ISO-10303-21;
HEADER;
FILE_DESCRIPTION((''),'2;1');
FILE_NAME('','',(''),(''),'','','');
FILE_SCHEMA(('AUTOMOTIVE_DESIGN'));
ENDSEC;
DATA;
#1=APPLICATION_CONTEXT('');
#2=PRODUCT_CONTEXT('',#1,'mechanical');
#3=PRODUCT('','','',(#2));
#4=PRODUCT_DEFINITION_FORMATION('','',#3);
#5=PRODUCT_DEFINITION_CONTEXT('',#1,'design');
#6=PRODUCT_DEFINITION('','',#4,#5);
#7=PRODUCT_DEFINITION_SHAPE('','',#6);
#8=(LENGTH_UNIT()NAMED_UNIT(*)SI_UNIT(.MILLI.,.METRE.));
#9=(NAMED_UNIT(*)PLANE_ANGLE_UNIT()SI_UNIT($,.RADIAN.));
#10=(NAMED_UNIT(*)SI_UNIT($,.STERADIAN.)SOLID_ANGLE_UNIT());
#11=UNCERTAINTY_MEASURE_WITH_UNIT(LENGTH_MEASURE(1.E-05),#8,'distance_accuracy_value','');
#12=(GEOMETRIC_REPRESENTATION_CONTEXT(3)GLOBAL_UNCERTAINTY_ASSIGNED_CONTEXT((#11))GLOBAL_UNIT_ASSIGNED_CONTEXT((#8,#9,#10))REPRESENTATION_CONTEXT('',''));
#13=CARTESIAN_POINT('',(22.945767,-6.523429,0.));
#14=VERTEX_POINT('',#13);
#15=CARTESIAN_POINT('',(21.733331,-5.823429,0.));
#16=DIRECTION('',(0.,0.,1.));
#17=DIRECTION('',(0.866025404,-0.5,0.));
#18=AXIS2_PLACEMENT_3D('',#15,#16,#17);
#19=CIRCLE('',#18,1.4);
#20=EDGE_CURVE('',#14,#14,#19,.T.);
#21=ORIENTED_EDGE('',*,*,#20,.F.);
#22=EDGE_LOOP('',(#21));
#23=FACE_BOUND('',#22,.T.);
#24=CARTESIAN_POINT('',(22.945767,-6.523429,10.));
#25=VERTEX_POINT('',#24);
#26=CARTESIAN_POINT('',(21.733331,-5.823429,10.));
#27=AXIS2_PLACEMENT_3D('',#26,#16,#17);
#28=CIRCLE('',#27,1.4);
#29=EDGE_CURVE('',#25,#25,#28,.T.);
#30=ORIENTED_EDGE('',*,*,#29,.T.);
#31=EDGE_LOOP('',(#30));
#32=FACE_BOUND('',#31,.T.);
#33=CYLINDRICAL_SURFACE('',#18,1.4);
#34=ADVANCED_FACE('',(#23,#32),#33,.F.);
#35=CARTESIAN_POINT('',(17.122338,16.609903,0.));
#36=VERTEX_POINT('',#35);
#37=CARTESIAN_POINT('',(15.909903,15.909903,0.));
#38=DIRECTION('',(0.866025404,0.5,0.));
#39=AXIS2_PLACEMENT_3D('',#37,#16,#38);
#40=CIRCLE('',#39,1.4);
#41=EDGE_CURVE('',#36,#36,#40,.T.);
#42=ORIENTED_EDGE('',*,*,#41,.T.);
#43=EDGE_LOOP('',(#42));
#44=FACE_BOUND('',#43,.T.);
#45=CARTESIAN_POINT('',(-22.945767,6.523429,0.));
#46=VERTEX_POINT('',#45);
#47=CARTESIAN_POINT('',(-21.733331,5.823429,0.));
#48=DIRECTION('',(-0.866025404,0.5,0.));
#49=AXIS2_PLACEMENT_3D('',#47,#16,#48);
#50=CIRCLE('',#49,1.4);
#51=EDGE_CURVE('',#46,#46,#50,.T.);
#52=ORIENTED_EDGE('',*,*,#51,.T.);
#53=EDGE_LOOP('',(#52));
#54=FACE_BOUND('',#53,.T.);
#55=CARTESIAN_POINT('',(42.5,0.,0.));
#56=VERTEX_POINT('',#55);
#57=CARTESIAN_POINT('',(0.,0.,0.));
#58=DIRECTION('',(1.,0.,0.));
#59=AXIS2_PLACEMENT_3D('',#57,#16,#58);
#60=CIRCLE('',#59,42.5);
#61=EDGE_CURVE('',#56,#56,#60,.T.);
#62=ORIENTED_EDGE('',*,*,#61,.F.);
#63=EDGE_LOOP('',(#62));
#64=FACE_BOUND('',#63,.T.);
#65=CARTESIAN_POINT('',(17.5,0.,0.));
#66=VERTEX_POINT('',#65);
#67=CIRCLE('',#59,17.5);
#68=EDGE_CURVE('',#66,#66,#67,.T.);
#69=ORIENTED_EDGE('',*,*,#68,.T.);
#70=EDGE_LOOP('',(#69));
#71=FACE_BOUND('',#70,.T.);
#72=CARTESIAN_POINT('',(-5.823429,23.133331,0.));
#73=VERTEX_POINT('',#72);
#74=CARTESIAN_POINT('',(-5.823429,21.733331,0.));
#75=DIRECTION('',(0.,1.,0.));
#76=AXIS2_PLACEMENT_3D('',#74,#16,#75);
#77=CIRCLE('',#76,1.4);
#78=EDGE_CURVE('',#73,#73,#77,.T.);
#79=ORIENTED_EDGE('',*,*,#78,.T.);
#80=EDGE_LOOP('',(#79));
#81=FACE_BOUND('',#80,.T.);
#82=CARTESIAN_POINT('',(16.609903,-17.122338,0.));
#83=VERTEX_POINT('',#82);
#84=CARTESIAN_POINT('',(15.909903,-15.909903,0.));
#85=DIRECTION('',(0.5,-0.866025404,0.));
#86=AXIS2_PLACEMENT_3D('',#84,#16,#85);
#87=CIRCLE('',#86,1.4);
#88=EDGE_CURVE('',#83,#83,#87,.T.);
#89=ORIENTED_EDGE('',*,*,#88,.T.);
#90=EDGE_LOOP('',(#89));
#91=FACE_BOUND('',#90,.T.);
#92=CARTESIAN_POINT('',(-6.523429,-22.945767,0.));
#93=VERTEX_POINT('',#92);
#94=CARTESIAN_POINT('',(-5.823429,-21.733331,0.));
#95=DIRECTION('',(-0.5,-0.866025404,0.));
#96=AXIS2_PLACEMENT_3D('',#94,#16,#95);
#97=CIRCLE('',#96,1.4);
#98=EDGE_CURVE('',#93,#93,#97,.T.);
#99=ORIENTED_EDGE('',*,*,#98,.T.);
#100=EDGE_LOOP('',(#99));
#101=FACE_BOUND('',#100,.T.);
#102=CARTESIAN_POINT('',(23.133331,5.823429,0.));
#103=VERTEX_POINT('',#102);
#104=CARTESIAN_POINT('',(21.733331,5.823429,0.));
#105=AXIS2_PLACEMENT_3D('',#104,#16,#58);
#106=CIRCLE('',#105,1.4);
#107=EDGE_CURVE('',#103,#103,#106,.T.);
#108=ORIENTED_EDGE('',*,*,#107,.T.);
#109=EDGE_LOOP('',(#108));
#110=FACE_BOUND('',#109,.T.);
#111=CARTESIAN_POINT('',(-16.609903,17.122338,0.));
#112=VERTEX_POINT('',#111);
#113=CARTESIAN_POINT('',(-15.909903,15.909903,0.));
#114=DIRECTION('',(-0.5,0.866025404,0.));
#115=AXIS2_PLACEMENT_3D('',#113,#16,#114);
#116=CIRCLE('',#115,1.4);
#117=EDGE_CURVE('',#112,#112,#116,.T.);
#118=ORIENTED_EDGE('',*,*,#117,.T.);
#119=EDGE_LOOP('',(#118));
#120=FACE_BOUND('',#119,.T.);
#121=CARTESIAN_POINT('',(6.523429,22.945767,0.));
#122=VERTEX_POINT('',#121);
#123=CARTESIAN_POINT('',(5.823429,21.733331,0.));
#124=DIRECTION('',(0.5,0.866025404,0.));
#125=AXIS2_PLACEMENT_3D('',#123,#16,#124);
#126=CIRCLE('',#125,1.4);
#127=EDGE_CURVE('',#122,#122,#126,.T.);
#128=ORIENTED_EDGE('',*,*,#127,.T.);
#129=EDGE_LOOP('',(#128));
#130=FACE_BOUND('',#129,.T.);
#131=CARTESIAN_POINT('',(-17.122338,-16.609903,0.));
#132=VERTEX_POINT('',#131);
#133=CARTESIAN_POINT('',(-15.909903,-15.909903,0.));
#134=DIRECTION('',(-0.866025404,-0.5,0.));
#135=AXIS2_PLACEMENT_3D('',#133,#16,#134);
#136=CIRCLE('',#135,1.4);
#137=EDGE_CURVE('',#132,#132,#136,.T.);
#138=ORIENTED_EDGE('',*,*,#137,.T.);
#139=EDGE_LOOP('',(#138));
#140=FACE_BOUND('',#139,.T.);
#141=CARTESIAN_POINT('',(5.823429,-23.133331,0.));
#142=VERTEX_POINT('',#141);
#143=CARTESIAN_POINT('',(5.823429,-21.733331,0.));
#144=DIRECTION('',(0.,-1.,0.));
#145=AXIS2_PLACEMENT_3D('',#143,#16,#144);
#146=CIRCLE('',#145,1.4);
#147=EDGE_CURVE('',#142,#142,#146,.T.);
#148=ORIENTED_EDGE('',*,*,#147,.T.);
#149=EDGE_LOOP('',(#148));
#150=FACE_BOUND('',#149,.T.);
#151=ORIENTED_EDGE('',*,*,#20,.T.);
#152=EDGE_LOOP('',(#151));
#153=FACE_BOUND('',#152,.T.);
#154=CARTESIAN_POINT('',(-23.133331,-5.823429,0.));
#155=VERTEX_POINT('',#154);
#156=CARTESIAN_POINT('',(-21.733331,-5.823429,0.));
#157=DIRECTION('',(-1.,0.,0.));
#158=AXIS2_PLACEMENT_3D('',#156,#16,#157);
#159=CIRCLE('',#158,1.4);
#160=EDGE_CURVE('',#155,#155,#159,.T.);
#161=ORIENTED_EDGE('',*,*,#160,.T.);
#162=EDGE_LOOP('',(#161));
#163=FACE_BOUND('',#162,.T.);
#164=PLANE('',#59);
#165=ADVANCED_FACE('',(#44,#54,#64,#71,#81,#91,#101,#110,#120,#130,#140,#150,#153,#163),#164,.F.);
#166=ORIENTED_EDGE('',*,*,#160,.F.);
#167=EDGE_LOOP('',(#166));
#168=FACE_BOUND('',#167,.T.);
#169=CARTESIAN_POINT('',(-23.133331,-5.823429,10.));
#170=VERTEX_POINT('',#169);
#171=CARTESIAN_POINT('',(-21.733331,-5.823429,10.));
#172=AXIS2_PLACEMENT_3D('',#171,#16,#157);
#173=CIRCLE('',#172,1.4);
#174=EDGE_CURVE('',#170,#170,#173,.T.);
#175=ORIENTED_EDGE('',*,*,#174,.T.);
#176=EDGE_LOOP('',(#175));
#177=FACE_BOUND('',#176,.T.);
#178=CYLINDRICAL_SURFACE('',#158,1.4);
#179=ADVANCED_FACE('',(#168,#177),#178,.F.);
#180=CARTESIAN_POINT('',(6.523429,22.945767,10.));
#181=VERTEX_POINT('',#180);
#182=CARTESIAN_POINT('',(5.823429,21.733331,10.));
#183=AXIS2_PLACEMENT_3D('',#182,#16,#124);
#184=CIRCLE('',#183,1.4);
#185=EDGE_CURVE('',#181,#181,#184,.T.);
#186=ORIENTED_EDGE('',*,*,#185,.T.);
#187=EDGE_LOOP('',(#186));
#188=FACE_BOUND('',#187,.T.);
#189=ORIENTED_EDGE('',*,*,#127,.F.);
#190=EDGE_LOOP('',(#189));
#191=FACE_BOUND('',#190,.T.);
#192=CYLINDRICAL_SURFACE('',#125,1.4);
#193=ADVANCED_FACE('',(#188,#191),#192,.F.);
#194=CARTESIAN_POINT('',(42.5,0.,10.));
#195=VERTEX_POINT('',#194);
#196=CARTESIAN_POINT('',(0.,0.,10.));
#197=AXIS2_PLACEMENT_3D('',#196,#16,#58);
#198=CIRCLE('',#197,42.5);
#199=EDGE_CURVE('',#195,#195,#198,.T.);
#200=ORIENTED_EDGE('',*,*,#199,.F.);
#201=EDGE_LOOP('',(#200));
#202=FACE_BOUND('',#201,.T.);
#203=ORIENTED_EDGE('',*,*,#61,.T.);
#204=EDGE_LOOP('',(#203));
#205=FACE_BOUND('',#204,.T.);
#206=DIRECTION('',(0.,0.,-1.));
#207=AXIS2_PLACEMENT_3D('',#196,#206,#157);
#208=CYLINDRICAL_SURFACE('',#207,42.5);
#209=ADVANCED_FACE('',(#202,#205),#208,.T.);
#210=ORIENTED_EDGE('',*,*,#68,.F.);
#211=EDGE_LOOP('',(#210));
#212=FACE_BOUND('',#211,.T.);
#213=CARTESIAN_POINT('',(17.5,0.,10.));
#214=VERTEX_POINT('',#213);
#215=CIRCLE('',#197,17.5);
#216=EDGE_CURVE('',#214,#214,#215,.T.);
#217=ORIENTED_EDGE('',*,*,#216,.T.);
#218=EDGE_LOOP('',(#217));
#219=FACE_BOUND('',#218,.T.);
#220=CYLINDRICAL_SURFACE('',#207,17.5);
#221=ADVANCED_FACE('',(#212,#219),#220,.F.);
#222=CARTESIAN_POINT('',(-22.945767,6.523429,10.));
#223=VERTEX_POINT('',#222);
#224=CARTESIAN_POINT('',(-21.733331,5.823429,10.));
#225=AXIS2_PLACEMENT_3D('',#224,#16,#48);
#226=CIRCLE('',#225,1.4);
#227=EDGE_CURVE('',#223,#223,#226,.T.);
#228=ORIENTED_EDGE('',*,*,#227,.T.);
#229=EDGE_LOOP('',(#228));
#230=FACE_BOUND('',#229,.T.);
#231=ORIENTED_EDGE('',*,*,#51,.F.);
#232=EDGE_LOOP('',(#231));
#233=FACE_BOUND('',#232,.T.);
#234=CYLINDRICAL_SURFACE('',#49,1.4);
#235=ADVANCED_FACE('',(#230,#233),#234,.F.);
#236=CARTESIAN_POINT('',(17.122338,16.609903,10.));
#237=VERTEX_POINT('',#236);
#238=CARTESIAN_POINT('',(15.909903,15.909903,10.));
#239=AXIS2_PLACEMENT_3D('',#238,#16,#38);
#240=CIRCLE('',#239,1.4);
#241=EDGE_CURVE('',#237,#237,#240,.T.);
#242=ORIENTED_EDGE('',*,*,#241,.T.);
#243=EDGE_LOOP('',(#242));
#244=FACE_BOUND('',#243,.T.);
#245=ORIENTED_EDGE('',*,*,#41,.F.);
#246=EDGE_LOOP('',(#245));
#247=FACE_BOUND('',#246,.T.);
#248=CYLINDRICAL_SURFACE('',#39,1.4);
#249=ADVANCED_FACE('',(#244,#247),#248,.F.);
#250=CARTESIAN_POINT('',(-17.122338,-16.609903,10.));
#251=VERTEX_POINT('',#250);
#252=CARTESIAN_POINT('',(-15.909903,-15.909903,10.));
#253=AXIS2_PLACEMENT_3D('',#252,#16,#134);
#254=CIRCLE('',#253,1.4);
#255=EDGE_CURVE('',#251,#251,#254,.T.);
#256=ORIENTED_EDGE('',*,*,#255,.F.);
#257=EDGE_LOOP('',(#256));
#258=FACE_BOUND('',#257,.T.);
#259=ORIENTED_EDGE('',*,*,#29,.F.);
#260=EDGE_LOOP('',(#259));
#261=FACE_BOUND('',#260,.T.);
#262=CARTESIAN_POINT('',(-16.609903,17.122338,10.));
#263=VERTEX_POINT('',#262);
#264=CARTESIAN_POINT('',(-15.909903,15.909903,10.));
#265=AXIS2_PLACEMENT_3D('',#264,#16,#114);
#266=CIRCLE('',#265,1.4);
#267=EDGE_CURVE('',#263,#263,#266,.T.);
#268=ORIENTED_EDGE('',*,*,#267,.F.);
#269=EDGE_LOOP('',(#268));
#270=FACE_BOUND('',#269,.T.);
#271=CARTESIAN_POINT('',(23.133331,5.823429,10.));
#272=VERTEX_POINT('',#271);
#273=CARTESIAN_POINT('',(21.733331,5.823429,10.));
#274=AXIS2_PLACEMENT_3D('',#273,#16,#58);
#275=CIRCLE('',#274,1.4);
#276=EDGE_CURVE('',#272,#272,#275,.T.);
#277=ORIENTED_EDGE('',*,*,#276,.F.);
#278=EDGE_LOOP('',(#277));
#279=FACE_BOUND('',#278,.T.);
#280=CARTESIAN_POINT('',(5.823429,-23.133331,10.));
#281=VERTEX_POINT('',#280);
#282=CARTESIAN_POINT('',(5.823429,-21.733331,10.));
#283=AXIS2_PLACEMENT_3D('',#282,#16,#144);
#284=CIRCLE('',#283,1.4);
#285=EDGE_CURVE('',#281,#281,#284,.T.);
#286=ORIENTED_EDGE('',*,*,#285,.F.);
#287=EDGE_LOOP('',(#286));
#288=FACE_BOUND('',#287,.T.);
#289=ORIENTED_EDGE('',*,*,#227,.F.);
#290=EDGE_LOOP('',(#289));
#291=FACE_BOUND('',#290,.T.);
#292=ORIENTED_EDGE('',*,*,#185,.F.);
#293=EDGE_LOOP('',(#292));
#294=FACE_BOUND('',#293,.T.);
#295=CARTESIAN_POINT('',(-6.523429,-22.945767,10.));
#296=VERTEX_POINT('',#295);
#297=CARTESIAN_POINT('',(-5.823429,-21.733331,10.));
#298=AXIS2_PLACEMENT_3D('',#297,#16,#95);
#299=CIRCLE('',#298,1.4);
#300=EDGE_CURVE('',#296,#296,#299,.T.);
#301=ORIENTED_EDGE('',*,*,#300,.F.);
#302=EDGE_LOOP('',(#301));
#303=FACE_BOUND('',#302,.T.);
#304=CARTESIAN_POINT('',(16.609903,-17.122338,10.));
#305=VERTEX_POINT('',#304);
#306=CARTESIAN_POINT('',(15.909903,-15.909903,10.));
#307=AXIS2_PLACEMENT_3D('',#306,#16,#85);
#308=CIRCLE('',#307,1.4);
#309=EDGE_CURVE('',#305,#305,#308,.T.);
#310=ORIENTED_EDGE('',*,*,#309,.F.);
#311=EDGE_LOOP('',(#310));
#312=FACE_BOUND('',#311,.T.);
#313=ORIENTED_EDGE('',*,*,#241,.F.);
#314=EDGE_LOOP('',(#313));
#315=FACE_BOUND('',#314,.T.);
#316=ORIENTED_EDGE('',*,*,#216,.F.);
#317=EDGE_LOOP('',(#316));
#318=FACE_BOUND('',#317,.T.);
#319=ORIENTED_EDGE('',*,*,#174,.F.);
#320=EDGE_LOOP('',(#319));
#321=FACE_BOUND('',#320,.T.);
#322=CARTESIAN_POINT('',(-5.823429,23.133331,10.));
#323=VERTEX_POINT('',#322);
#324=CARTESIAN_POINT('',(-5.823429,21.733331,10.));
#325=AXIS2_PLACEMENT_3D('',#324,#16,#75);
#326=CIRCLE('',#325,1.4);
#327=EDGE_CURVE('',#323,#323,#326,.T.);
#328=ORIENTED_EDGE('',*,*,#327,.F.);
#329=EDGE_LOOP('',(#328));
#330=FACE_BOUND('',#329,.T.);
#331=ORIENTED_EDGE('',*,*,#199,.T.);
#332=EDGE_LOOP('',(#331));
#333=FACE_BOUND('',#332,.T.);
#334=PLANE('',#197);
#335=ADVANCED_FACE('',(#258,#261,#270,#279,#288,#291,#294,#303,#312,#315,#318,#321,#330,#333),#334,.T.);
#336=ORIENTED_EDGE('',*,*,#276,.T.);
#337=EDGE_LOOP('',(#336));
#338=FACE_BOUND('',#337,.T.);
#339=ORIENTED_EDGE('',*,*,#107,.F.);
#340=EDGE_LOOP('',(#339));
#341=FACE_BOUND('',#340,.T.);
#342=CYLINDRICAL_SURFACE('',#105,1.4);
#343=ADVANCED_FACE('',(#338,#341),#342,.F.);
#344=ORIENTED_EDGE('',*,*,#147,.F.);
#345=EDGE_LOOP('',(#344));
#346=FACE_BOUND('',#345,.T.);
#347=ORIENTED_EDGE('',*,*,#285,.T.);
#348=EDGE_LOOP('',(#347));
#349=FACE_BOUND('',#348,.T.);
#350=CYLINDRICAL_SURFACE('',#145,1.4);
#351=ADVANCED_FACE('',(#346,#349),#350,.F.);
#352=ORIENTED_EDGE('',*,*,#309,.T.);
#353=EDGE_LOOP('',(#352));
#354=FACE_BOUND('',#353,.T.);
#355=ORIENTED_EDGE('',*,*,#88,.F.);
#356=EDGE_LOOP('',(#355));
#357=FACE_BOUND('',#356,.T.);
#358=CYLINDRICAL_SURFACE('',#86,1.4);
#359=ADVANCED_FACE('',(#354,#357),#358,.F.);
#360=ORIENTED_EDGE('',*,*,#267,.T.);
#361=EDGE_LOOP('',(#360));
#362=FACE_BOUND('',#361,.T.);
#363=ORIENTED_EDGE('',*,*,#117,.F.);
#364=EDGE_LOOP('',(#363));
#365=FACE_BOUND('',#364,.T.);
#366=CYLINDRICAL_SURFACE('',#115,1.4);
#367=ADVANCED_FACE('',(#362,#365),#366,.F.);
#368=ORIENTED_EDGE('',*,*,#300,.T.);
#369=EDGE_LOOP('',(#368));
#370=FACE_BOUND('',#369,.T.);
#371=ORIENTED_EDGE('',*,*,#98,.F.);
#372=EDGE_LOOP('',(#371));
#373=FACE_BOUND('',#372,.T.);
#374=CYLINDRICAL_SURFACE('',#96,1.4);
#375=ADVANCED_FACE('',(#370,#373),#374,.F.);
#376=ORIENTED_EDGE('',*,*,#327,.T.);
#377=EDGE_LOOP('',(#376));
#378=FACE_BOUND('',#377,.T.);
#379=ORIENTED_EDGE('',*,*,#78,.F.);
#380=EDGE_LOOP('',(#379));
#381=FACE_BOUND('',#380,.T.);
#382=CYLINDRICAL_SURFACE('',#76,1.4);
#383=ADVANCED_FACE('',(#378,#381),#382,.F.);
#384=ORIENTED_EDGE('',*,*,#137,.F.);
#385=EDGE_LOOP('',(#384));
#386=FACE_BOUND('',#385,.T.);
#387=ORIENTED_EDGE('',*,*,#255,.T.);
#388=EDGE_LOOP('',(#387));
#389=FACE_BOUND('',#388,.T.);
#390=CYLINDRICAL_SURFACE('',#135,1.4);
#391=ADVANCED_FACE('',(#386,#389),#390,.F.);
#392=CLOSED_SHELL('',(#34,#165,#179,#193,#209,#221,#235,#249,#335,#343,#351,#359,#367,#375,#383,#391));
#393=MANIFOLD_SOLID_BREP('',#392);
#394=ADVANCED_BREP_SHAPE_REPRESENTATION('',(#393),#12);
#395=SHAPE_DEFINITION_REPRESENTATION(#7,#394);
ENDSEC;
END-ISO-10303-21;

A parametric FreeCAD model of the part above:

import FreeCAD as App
import Part
import Sketcher
from FreeCAD import Vector
Q = App.Units.Quantity

doc = App.newDocument("Part")
body = doc.addObject("PartDesign::Body", "Body")

sketch1 = body.newObject("Sketcher::SketchObject", "Sketch")
sketch1.AttachmentSupport = (doc.getObject("XY_Plane"), [""])
sketch1.MapMode = "FlatFace"
sketch1.addGeometry([
    Part.Circle(Vector(0, 0, 0), Vector(0, 0, 1), 42),
    Part.Circle(Vector(0, 0, 0), Vector(0, 0, 1), 18),
], False)
sketch1.addConstraint([
    Sketcher.Constraint("Coincident", 0, 3, -1, 1),
    Sketcher.Constraint("Coincident", 1, 3, -1, 1),
    Sketcher.Constraint("Diameter", 0, Q("85 mm")),
    Sketcher.Constraint("Diameter", 1, Q("35 mm")),
])
pad1 = body.newObject("PartDesign::Pad", "Pad")
pad1.Profile = sketch1
pad1.Length = 10

sketch2 = body.newObject("Sketcher::SketchObject", "Sketch001")
sketch2.AttachmentSupport = (doc.getObject("XY_Plane"), [""])
sketch2.MapMode = "FlatFace"
sketch2.AttachmentOffset = App.Placement(Vector(0, 0, 10), App.Rotation())
sketch2.addGeometry(Part.Circle(Vector(21.7, 5.8, 0), Vector(0, 0, 1), 1.4), False)
sketch2.addConstraint([
    Sketcher.Constraint("Diameter", 0, Q("2.8 mm")),
    Sketcher.Constraint("DistanceX", -1, 1, 0, 3, Q("21.733331 mm")),
    Sketcher.Constraint("DistanceY", -1, 1, 0, 3, Q("5.823429 mm")),
])
pocket1 = body.newObject("PartDesign::Pocket", "Pocket")
pocket1.Profile = sketch2
pocket1.Type = "ThroughAll"
doc.recompute()

polarpattern = body.newObject("PartDesign::PolarPattern", "PolarPattern")
polarpattern.Originals = [pocket1]
polarpattern.Axis = (doc.getObject("Z_Axis"), [""])
polarpattern.Angle = 360
polarpattern.Occurrences = 12
body.Tip = polarpattern

doc.recompute()
